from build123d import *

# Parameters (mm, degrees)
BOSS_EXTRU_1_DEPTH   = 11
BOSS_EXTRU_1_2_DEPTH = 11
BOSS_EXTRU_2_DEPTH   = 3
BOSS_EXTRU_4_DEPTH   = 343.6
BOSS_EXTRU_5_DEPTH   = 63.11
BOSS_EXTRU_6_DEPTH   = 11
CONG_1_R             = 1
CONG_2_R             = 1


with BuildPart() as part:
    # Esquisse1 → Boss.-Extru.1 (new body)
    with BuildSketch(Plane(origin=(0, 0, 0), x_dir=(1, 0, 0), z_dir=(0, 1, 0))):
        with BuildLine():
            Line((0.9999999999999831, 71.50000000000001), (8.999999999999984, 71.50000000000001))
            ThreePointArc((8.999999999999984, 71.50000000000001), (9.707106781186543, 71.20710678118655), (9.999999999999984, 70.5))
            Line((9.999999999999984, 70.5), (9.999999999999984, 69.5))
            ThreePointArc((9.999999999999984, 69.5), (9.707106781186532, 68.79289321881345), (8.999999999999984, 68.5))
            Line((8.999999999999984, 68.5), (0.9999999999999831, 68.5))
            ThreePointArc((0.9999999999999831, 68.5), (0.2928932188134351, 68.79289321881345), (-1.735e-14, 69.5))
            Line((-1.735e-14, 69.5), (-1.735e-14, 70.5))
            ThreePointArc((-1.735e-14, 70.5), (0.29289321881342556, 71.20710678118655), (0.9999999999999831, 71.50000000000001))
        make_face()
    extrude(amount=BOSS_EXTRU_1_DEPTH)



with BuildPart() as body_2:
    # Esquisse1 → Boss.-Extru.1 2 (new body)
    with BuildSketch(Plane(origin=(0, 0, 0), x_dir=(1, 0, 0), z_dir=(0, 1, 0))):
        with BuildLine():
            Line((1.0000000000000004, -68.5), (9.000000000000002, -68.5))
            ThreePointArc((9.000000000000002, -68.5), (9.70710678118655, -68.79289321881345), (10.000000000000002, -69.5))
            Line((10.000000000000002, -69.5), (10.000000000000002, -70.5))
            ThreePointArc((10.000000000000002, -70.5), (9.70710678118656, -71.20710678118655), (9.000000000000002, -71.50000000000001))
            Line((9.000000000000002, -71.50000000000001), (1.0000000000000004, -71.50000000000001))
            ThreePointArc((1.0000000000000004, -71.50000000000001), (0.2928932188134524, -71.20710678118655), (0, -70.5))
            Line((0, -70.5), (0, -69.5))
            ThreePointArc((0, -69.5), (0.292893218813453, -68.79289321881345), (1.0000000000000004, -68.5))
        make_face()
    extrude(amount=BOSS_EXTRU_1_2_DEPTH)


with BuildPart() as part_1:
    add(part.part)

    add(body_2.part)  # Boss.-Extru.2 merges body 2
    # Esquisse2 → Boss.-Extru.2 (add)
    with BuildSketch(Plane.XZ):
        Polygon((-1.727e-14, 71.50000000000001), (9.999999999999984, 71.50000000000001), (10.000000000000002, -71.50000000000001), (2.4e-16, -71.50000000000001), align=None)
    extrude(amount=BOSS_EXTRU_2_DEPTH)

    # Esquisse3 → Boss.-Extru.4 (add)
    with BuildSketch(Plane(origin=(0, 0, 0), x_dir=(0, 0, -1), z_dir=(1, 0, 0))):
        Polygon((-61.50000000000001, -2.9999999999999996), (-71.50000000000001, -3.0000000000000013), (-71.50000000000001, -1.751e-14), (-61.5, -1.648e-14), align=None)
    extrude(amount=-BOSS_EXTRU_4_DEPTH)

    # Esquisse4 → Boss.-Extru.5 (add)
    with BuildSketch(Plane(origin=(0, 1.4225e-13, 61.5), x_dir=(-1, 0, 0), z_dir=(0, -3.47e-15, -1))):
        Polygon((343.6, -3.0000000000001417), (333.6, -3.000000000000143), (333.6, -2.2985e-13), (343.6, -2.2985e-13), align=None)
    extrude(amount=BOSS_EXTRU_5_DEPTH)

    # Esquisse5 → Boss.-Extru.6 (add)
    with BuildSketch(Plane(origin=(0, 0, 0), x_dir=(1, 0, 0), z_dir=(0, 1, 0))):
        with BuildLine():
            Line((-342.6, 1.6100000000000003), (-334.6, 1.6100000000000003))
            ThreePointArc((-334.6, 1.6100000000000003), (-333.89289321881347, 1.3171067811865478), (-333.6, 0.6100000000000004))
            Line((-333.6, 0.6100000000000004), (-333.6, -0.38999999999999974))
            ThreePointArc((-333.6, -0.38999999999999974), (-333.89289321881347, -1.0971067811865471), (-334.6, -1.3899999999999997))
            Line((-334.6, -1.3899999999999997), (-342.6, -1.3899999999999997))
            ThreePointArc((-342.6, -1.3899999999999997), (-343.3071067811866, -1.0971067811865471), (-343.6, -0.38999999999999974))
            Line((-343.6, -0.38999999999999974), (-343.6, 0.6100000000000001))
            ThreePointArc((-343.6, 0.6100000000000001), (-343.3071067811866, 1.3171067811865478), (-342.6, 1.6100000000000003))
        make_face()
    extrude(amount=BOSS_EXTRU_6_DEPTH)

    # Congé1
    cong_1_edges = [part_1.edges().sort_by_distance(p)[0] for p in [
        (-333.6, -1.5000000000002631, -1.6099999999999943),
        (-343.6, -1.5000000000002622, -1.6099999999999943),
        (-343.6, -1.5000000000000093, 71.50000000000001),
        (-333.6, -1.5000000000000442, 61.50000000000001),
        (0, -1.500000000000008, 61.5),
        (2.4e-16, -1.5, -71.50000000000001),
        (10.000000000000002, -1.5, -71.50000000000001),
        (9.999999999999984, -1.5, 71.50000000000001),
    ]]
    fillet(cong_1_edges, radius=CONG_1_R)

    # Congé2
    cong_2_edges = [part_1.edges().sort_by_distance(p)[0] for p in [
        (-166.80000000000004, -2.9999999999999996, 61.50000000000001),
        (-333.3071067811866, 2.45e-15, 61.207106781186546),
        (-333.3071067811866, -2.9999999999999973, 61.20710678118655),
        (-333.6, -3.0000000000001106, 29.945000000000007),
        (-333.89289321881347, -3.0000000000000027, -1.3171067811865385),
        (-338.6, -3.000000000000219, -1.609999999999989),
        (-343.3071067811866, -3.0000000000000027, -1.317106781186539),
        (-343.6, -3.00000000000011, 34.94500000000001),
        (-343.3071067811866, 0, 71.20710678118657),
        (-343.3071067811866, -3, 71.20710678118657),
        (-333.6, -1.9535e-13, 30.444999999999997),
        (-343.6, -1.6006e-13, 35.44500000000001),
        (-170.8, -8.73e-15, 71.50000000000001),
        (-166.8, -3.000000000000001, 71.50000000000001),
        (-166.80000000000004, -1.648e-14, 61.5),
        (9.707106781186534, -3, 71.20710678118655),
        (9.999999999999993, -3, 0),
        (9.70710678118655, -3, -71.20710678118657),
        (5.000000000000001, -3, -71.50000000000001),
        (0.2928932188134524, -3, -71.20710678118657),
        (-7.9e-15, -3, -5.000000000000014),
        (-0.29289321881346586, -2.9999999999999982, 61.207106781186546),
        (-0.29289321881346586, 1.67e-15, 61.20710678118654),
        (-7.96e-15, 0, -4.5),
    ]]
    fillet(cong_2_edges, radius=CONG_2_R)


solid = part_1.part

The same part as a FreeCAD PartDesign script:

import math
import FreeCAD as App
import Part
import Sketcher
Q = App.Units.Quantity


def edges_at(feature, points):
    """Names of the edges that pass closest to the given points."""
    edges = feature.Shape.Edges
    near = lambda p: min(range(len(edges)), key=lambda i: edges[i].distToShape(Part.Vertex(*p))[0])
    return sorted({f"Edge{near(p) + 1}" for p in points})


def add_polygon(sketch, points):
    """Adds a closed chain of lines whose ends are joined by coincident constraints."""
    first, n = sketch.GeometryCount, len(points)
    for a, b in zip(points, points[1:] + points[:1]):
        sketch.addGeometry(Part.LineSegment(App.Vector(*a, 0), App.Vector(*b, 0)), False)
    for i in range(n):
        sketch.addConstraint(Sketcher.Constraint("Coincident", first + i, 2, first + (i + 1) % n, 1))

doc = App.newDocument("Part")
params = doc.addObject("Spreadsheet::Sheet", "Params")
for row, (alias, value) in enumerate([
    ("sketch1_radius", "1 mm"),
    ("sketch1_width", "8 mm"),
    ("sketch1_height", "1 mm"),
    ("pad1_length", "11 mm"),
    ("sketch2_radius", "1 mm"),
    ("sketch2_width", "8 mm"),
    ("sketch2_height", "1 mm"),
    ("pad2_length", "11 mm"),
    ("sketch3_width", "10 mm"),
    ("sketch3_height", "143 mm"),
    ("pad3_length", "3 mm"),
    ("sketch4_width", "3 mm"),
    ("sketch4_height", "10 mm"),
    ("pad4_length", "343.6 mm"),
    ("sketch5_width", "10 mm"),
    ("sketch5_height", "3 mm"),
    ("pad5_length", "63.11 mm"),
    ("sketch6_radius", "1 mm"),
    ("sketch6_width", "8 mm"),
    ("sketch6_height", "1 mm"),
    ("pad6_length", "11 mm"),
    ("fillet_radius", "1 mm"),
    ("fillet2_radius", "1 mm"),
], start=1):
    params.set(f"A{row}", alias)
    params.set(f"B{row}", "=" + value)
    params.setAlias(f"B{row}", alias)

body = doc.addObject("PartDesign::Body", "Body")

sketch1 = body.newObject("Sketcher::SketchObject", "Sketch")
sketch1.AttachmentSupport = (doc.getObject("XZ_Plane"), [""])
sketch1.MapMode = "FlatFace"
sketch1.addGeometry([
    Part.LineSegment(App.Vector(9, -71.5, 0), App.Vector(1, -71.5, 0)),
    Part.ArcOfCircle(Part.Circle(App.Vector(1, -70.5, 0), App.Vector(0, 0, 1), 1), math.radians(180), math.radians(270)),
    Part.LineSegment(App.Vector(0, -70.5, 0), App.Vector(0, -69.5, 0)),
    Part.ArcOfCircle(Part.Circle(App.Vector(1, -69.5, 0), App.Vector(0, 0, 1), 1), math.radians(90), math.radians(180)),
    Part.LineSegment(App.Vector(1, -68.5, 0), App.Vector(9, -68.5, 0)),
    Part.ArcOfCircle(Part.Circle(App.Vector(9, -69.5, 0), App.Vector(0, 0, 1), 1), math.radians(0), math.radians(90)),
    Part.LineSegment(App.Vector(10, -69.5, 0), App.Vector(10, -70.5, 0)),
    Part.ArcOfCircle(Part.Circle(App.Vector(9, -70.5, 0), App.Vector(0, 0, 1), 1), math.radians(-90), math.radians(0)),
], False)
sketch1.addConstraint([
    Sketcher.Constraint("Tangent", 0, 2, 1, 2),
    Sketcher.Constraint("Tangent", 1, 1, 2, 1),
    Sketcher.Constraint("Tangent", 2, 2, 3, 2),
    Sketcher.Constraint("Tangent", 3, 1, 4, 1),
    Sketcher.Constraint("Tangent", 4, 2, 5, 2),
    Sketcher.Constraint("Tangent", 5, 1, 6, 1),
    Sketcher.Constraint("Tangent", 6, 2, 7, 2),
    Sketcher.Constraint("Tangent", 7, 1, 0, 1),
    Sketcher.Constraint("Horizontal", 0),
    Sketcher.Constraint("Vertical", 2),
    Sketcher.Constraint("Horizontal", 4),
    Sketcher.Constraint("Vertical", 6),
    Sketcher.Constraint("Equal", 1, 3),
    Sketcher.Constraint("Equal", 3, 5),
    Sketcher.Constraint("Equal", 5, 7),
    Sketcher.Constraint("PointOnObject", 1, 1, -2),
    Sketcher.Constraint("Radius", 1, Q("1 mm")),
    Sketcher.Constraint("DistanceX", 0, 2, 0, 1, Q("8 mm")),
    Sketcher.Constraint("DistanceY", 2, 1, 2, 2, Q("1 mm")),
    Sketcher.Constraint("DistanceY", 1, 3, -1, 1, Q("70.5 mm")),
])
sketch1.setExpression("Constraints[16]", "Params.sketch1_radius")
sketch1.setExpression("Constraints[17]", "Params.sketch1_width")
sketch1.setExpression("Constraints[18]", "Params.sketch1_height")
pad1 = body.newObject("PartDesign::Pad", "Pad")
pad1.Profile = sketch1
pad1.setExpression("Length", "Params.pad1_length")
pad1.Reversed = True
body2 = doc.addObject("PartDesign::Body", "Body001")

sketch2 = body2.newObject("Sketcher::SketchObject", "Sketch001")
sketch2.AttachmentSupport = (doc.getObject("XZ_Plane001"), [""])
sketch2.MapMode = "FlatFace"
sketch2.addGeometry([
    Part.LineSegment(App.Vector(9, 68.5, 0), App.Vector(1, 68.5, 0)),
    Part.ArcOfCircle(Part.Circle(App.Vector(1, 69.5, 0), App.Vector(0, 0, 1), 1), math.radians(180), math.radians(270)),
    Part.LineSegment(App.Vector(0, 69.5, 0), App.Vector(0, 70.5, 0)),
    Part.ArcOfCircle(Part.Circle(App.Vector(1, 70.5, 0), App.Vector(0, 0, 1), 1), math.radians(90), math.radians(180)),
    Part.LineSegment(App.Vector(1, 71.5, 0), App.Vector(9, 71.5, 0)),
    Part.ArcOfCircle(Part.Circle(App.Vector(9, 70.5, 0), App.Vector(0, 0, 1), 1), math.radians(0), math.radians(90)),
    Part.LineSegment(App.Vector(10, 70.5, 0), App.Vector(10, 69.5, 0)),
    Part.ArcOfCircle(Part.Circle(App.Vector(9, 69.5, 0), App.Vector(0, 0, 1), 1), math.radians(-90), math.radians(0)),
], False)
sketch2.addConstraint([
    Sketcher.Constraint("Tangent", 0, 2, 1, 2),
    Sketcher.Constraint("Tangent", 1, 1, 2, 1),
    Sketcher.Constraint("Tangent", 2, 2, 3, 2),
    Sketcher.Constraint("Tangent", 3, 1, 4, 1),
    Sketcher.Constraint("Tangent", 4, 2, 5, 2),
    Sketcher.Constraint("Tangent", 5, 1, 6, 1),
    Sketcher.Constraint("Tangent", 6, 2, 7, 2),
    Sketcher.Constraint("Tangent", 7, 1, 0, 1),
    Sketcher.Constraint("Horizontal", 0),
    Sketcher.Constraint("Vertical", 2),
    Sketcher.Constraint("Horizontal", 4),
    Sketcher.Constraint("Vertical", 6),
    Sketcher.Constraint("Equal", 1, 3),
    Sketcher.Constraint("Equal", 3, 5),
    Sketcher.Constraint("Equal", 5, 7),
    Sketcher.Constraint("PointOnObject", 1, 1, -2),
    Sketcher.Constraint("Radius", 1, Q("1 mm")),
    Sketcher.Constraint("DistanceX", 0, 2, 0, 1, Q("8 mm")),
    Sketcher.Constraint("DistanceY", 2, 1, 2, 2, Q("1 mm")),
    Sketcher.Constraint("DistanceY", -1, 1, 1, 3, Q("69.5 mm")),
])
sketch2.setExpression("Constraints[16]", "Params.sketch2_radius")
sketch2.setExpression("Constraints[17]", "Params.sketch2_width")
sketch2.setExpression("Constraints[18]", "Params.sketch2_height")
pad2 = body2.newObject("PartDesign::Pad", "Pad001")
pad2.Profile = sketch2
pad2.setExpression("Length", "Params.pad2_length")
pad2.Reversed = True
body.AllowCompound = True
doc.recompute()

boolean = body.newObject("PartDesign::Boolean", "Boolean")
boolean.Type = "Fuse"
boolean.addObjects([body2])

sketch3 = body.newObject("Sketcher::SketchObject", "Sketch002")
sketch3.AttachmentSupport = (doc.getObject("XZ_Plane"), [""])
sketch3.MapMode = "FlatFace"
add_polygon(sketch3, [(10, 72), (0, 72), (0, -72), (10, -72)])
sketch3.addConstraint([
    Sketcher.Constraint("Horizontal", 0),
    Sketcher.Constraint("Vertical", 1),
    Sketcher.Constraint("Horizontal", 2),
    Sketcher.Constraint("Vertical", 3),
    Sketcher.Constraint("Symmetric", 0, 2, 1, 2, -1, 1),
    Sketcher.Constraint("DistanceX", 0, 2, 0, 1, Q("10 mm")),
    Sketcher.Constraint("DistanceY", 1, 2, 1, 1, Q("143 mm")),
])
sketch3.setExpression("Constraints[9]", "Params.sketch3_width")
sketch3.setExpression("Constraints[10]", "Params.sketch3_height")
pad3 = body.newObject("PartDesign::Pad", "Pad002")
pad3.Profile = sketch3
pad3.setExpression("Length", "Params.pad3_length")

sketch4 = body.newObject("Sketcher::SketchObject", "Sketch003")
sketch4.AttachmentSupport = (doc.getObject("YZ_Plane"), [""])
sketch4.MapMode = "FlatFace"
add_polygon(sketch4, [(-3, 71.5), (-3, 61.5), (0, 61.5), (0, 71.5)])
sketch4.addConstraint([
    Sketcher.Constraint("Vertical", 0),
    Sketcher.Constraint("Horizontal", 1),
    Sketcher.Constraint("Vertical", 2),
    Sketcher.Constraint("Horizontal", 3),
    Sketcher.Constraint("PointOnObject", 1, 2, -2),
    Sketcher.Constraint("DistanceX", 1, 1, 1, 2, Q("3 mm")),
    Sketcher.Constraint("DistanceY", 0, 2, 0, 1, Q("10 mm")),
    Sketcher.Constraint("DistanceY", -1, 1, 0, 2, Q("61.5 mm")),
])
sketch4.setExpression("Constraints[9]", "Params.sketch4_width")
sketch4.setExpression("Constraints[10]", "Params.sketch4_height")
pad4 = body.newObject("PartDesign::Pad", "Pad003")
pad4.Profile = sketch4
pad4.setExpression("Length", "Params.pad4_length")
pad4.Reversed = True

sketch5 = body.newObject("Sketcher::SketchObject", "Sketch004")
sketch5.AttachmentSupport = (doc.getObject("XY_Plane"), [""])
sketch5.MapMode = "FlatFace"
sketch5.AttachmentOffset = App.Placement(App.Vector(0, 0, 61.5), App.Rotation())
add_polygon(sketch5, [(-333.6, -3), (-343.6, -3), (-343.6, 0), (-333.6, 0)])
sketch5.addConstraint([
    Sketcher.Constraint("Horizontal", 0),
    Sketcher.Constraint("Vertical", 1),
    Sketcher.Constraint("Horizontal", 2),
    Sketcher.Constraint("Vertical", 3),
    Sketcher.Constraint("PointOnObject", 1, 2, -1),
    Sketcher.Constraint("DistanceX", 0, 2, 0, 1, Q("10 mm")),
    Sketcher.Constraint("DistanceY", 1, 1, 1, 2, Q("3 mm")),
    Sketcher.Constraint("DistanceX", 0, 2, -1, 1, Q("343.6 mm")),
])
sketch5.setExpression("Constraints[9]", "Params.sketch5_width")
sketch5.setExpression("Constraints[10]", "Params.sketch5_height")
pad5 = body.newObject("PartDesign::Pad", "Pad004")
pad5.Profile = sketch5
pad5.setExpression("Length", "Params.pad5_length")
pad5.Reversed = True

sketch6 = body.newObject("Sketcher::SketchObject", "Sketch005")
sketch6.AttachmentSupport = (doc.getObject("XZ_Plane"), [""])
sketch6.MapMode = "FlatFace"
sketch6.addGeometry([
    Part.LineSegment(App.Vector(-334.6, -1.6, 0), App.Vector(-342.6, -1.6, 0)),
    Part.ArcOfCircle(Part.Circle(App.Vector(-342.6, -0.6, 0), App.Vector(0, 0, 1), 1), math.radians(180), math.radians(270)),
    Part.LineSegment(App.Vector(-343.6, -0.6, 0), App.Vector(-343.6, 0.4, 0)),
    Part.ArcOfCircle(Part.Circle(App.Vector(-342.6, 0.4, 0), App.Vector(0, 0, 1), 1), math.radians(90), math.radians(180)),
    Part.LineSegment(App.Vector(-342.6, 1.4, 0), App.Vector(-334.6, 1.4, 0)),
    Part.ArcOfCircle(Part.Circle(App.Vector(-334.6, 0.4, 0), App.Vector(0, 0, 1), 1), math.radians(0), math.radians(90)),
    Part.LineSegment(App.Vector(-333.6, 0.4, 0), App.Vector(-333.6, -0.6, 0)),
    Part.ArcOfCircle(Part.Circle(App.Vector(-334.6, -0.6, 0), App.Vector(0, 0, 1), 1), math.radians(-90), math.radians(0)),
], False)
sketch6.addConstraint([
    Sketcher.Constraint("Tangent", 0, 2, 1, 2),
    Sketcher.Constraint("Tangent", 1, 1, 2, 1),
    Sketcher.Constraint("Tangent", 2, 2, 3, 2),
    Sketcher.Constraint("Tangent", 3, 1, 4, 1),
    Sketcher.Constraint("Tangent", 4, 2, 5, 2),
    Sketcher.Constraint("Tangent", 5, 1, 6, 1),
    Sketcher.Constraint("Tangent", 6, 2, 7, 2),
    Sketcher.Constraint("Tangent", 7, 1, 0, 1),
    Sketcher.Constraint("Horizontal", 0),
    Sketcher.Constraint("Vertical", 2),
    Sketcher.Constraint("Horizontal", 4),
    Sketcher.Constraint("Vertical", 6),
    Sketcher.Constraint("Equal", 1, 3),
    Sketcher.Constraint("Equal", 3, 5),
    Sketcher.Constraint("Equal", 5, 7),
    Sketcher.Constraint("Radius", 1, Q("1 mm")),
    Sketcher.Constraint("DistanceX", 0, 2, 0, 1, Q("8 mm")),
    Sketcher.Constraint("DistanceY", 2, 1, 2, 2, Q("1 mm")),
    Sketcher.Constraint("DistanceX", 1, 3, -1, 1, Q("342.6 mm")),
    Sketcher.Constraint("DistanceY", 1, 3, -1, 1, Q("0.61 mm")),
])
sketch6.setExpression("Constraints[15]", "Params.sketch6_radius")
sketch6.setExpression("Constraints[16]", "Params.sketch6_width")
sketch6.setExpression("Constraints[17]", "Params.sketch6_height")
pad6 = body.newObject("PartDesign::Pad", "Pad005")
pad6.Profile = sketch6
pad6.setExpression("Length", "Params.pad6_length")
pad6.Reversed = True
doc.recompute()

fillet = body.newObject("PartDesign::Fillet", "Fillet")
fillet.Base = (pad6, edges_at(pad6, [
    (-333.6, -1.5, -1.61),
    (-343.6, -1.5, -1.61),
    (-343.6, -1.5, 71.5),
    (-333.6, -1.5, 61.5),
    (0, -1.5, 61.5),
    (0, -1.5, -71.5),
    (10, -1.5, -71.5),
    (10, -1.5, 71.5),
]))
fillet.setExpression("Radius", "Params.fillet_radius")
doc.recompute()

fillet2 = body.newObject("PartDesign::Fillet", "Fillet001")
fillet2.Base = (fillet, edges_at(fillet, [
    (-166.8, -3, 61.5),
    (-333.307, 0, 61.207),
    (-333.307, -3, 61.207),
    (-333.6, -3, 29.945),
    (-333.893, -3, -1.317),
    (-338.6, -3, -1.61),
    (-343.307, -3, -1.317),
    (-343.6, -3, 34.945),
    (-343.307, 0, 71.207),
    (-343.307, -3, 71.207),
    (-333.6, 0, 30.445),
    (-343.6, 0, 35.445),
    (-170.8, 0, 71.5),
    (-166.8, -3, 71.5),
    (-166.8, 0, 61.5),
    (9.707, -3, 71.207),
    (10, -3, 0),
    (9.707, -3, -71.207),
    (5, -3, -71.5),
    (0.293, -3, -71.207),
    (0, -3, -5),
    (-0.293, -3, 61.207),
    (-0.293, 0, 61.207),
    (0, 0, -4.5),
]))
fillet2.setExpression("Radius", "Params.fillet2_radius")

doc.recompute()
